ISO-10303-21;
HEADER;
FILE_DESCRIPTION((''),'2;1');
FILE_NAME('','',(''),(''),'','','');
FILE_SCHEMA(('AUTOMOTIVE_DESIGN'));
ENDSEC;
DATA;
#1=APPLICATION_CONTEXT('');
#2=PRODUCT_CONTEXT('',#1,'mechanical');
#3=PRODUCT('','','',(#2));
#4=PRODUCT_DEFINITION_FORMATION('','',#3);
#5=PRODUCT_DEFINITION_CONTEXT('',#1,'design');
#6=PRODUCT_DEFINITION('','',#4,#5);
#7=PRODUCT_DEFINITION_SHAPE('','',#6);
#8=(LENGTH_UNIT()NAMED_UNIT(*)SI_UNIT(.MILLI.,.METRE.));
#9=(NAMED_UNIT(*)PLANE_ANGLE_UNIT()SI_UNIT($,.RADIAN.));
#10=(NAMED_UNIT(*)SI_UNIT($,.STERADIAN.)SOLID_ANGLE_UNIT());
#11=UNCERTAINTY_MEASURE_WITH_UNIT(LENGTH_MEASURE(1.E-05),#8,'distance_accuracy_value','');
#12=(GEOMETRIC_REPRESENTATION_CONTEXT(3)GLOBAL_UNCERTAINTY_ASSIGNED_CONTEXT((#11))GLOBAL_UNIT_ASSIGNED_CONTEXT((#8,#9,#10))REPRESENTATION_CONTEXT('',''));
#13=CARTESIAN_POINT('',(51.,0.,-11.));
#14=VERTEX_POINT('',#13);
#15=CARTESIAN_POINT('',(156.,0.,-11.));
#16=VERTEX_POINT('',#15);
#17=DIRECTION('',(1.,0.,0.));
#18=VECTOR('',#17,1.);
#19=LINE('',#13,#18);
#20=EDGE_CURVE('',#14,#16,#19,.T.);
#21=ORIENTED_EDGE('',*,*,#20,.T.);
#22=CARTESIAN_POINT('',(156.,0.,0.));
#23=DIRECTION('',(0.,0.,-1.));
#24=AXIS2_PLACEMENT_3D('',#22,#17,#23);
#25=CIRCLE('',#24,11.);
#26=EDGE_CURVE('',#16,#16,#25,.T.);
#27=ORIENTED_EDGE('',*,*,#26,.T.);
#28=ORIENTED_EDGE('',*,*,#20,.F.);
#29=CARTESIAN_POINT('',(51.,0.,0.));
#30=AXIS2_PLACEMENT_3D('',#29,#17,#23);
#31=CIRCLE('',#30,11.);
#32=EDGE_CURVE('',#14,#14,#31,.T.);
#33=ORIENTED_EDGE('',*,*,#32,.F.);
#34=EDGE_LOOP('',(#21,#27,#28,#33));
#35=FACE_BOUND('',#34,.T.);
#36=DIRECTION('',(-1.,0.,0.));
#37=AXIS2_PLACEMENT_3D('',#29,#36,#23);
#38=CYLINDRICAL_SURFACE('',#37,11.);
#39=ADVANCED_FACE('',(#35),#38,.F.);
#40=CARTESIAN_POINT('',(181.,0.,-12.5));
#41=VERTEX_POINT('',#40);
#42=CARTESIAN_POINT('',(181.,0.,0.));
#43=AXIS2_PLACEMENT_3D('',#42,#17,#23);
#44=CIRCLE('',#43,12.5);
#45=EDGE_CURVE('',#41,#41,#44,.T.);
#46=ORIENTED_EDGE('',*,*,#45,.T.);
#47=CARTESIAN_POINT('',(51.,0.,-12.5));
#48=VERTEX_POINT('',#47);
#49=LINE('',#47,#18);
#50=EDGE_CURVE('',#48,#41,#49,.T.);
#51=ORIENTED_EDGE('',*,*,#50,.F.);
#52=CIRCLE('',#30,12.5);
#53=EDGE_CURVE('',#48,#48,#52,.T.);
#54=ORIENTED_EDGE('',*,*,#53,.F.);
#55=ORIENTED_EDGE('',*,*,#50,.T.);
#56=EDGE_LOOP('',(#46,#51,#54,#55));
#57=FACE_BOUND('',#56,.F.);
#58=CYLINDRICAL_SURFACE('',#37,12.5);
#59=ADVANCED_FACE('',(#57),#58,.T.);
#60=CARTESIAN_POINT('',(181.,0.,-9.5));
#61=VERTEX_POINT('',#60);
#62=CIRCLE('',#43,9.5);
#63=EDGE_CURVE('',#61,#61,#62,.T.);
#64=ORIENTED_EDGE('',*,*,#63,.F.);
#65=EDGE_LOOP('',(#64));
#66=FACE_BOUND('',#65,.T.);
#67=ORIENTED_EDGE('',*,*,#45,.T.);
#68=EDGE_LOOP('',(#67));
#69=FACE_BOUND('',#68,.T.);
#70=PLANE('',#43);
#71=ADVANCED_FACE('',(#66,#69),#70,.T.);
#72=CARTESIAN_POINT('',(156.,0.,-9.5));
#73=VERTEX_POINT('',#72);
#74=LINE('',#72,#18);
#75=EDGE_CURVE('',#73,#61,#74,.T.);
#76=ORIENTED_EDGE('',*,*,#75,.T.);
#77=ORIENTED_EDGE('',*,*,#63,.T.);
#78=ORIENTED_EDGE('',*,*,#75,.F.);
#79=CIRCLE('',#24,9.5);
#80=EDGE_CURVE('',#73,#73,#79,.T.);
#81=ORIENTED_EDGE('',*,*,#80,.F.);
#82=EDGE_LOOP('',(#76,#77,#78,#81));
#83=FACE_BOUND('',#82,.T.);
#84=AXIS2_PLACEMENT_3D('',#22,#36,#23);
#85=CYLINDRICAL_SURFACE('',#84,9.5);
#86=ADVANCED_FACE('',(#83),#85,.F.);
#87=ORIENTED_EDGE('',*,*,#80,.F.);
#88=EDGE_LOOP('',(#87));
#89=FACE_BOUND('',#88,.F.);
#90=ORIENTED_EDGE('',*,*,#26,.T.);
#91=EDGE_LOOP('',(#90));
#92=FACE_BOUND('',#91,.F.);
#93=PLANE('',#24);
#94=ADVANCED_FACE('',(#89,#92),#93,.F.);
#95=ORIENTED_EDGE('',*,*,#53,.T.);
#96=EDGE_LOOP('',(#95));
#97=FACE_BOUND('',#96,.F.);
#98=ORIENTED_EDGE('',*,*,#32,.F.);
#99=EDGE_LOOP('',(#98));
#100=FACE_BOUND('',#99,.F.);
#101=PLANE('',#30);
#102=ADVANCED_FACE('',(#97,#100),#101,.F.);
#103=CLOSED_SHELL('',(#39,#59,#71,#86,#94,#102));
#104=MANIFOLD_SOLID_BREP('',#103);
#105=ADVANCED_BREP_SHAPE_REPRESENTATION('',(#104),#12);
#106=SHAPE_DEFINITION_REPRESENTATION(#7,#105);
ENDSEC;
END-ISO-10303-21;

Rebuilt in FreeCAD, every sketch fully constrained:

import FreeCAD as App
import Part
import Sketcher

V = App.Vector
Q = App.Units.Quantity

doc = App.newDocument("Part")
body = doc.addObject("PartDesign::Body", "Body")

# Sketch on XY plane
sketch1 = doc.addObject("Sketcher::SketchObject", "Sketch")
body.addObject(sketch1)
sketch1.AttachmentSupport = (doc.XY_Plane, [""])
sketch1.MapMode = "FlatFace"
sketch1.addGeometry(Part.Circle(V(0, 0, 0), V(0, 0, 1), 9.5), False)
sketch1.addConstraint([
    Sketcher.Constraint("Coincident", 0, 3, -1, 1),
    Sketcher.Constraint("Diameter", 0, Q("19 mm")),
])
pad1 = doc.addObject("PartDesign::Pad", "Pad")
body.addObject(pad1)
pad1.Profile = sketch1
pad1.Length = 25
body2 = doc.addObject("PartDesign::Body", "Body001")
doc.recompute()

body.Placement = App.Placement(V(0, 0, 0), App.Rotation(V(0, 1, 0), 90))
boolean = doc.addObject("PartDesign::Boolean", "Boolean")
body2.addObject(boolean)
boolean.Type = "Fuse"
boolean.addObjects([body])
body3 = doc.addObject("PartDesign::Body", "Body002")
doc.recompute()

body2.Placement = App.Placement(V(156, 0, 0), App.Rotation(V(0, 0, 1), 0))
boolean2 = doc.addObject("PartDesign::Boolean", "Boolean001")
body3.addObject(boolean2)
boolean2.Type = "Fuse"
boolean2.addObjects([body2])
body4 = doc.addObject("PartDesign::Body", "Body003")

# Sketch on XY plane
sketch2 = doc.addObject("Sketcher::SketchObject", "Sketch001")
body4.addObject(sketch2)
sketch2.AttachmentSupport = (doc.getObject("XY_Plane003"), [""])
sketch2.MapMode = "FlatFace"
sketch2.addGeometry(Part.Circle(V(0, 0, 0), V(0, 0, 1), 11), False)
sketch2.addConstraint([
    Sketcher.Constraint("Coincident", 0, 3, -1, 1),
    Sketcher.Constraint("Diameter", 0, Q("22 mm")),
])
pad2 = doc.addObject("PartDesign::Pad", "Pad001")
body4.addObject(pad2)
pad2.Profile = sketch2
pad2.Length = 105
body5 = doc.addObject("PartDesign::Body", "Body004")
doc.recompute()

body4.Placement = App.Placement(V(0, 0, 0), App.Rotation(V(0, 1, 0), 90))
boolean3 = doc.addObject("PartDesign::Boolean", "Boolean002")
body5.addObject(boolean3)
boolean3.Type = "Fuse"
boolean3.addObjects([body4])
body6 = doc.addObject("PartDesign::Body", "Body005")
doc.recompute()

body5.Placement = App.Placement(V(51, 0, 0), App.Rotation(V(0, 0, 1), 0))
boolean4 = doc.addObject("PartDesign::Boolean", "Boolean003")
body6.addObject(boolean4)
boolean4.Type = "Fuse"
boolean4.addObjects([body5])
body7 = doc.addObject("PartDesign::Body", "Body006")

# Sketch on XY plane
sketch3 = doc.addObject("Sketcher::SketchObject", "Sketch002")
body7.addObject(sketch3)
sketch3.AttachmentSupport = (doc.getObject("XY_Plane006"), [""])
sketch3.MapMode = "FlatFace"
sketch3.addGeometry(Part.Circle(V(0, 0, 0), V(0, 0, 1), 12.5), False)
sketch3.addConstraint([
    Sketcher.Constraint("Coincident", 0, 3, -1, 1),
    Sketcher.Constraint("Diameter", 0, Q("25 mm")),
])
pad3 = doc.addObject("PartDesign::Pad", "Pad002")
body7.addObject(pad3)
pad3.Profile = sketch3
pad3.Length = 130
body8 = doc.addObject("PartDesign::Body", "Body007")
doc.recompute()

body7.Placement = App.Placement(V(0, 0, 0), App.Rotation(V(0, 1, 0), 90))
boolean5 = doc.addObject("PartDesign::Boolean", "Boolean004")
body8.addObject(boolean5)
boolean5.Type = "Fuse"
boolean5.addObjects([body7])
body9 = doc.addObject("PartDesign::Body", "Body008")
doc.recompute()

body8.Placement = App.Placement(V(51, 0, 0), App.Rotation(V(0, 0, 1), 0))
boolean6 = doc.addObject("PartDesign::Boolean", "Boolean005")
body9.addObject(boolean6)
boolean6.Type = "Fuse"
boolean6.addObjects([body8])
doc.recompute()

boolean7 = doc.addObject("PartDesign::Boolean", "Boolean006")
body9.addObject(boolean7)
boolean7.Type = "Cut"
boolean7.addObjects([body6])
doc.recompute()

boolean8 = doc.addObject("PartDesign::Boolean", "Boolean007")
body9.addObject(boolean8)
boolean8.Type = "Cut"
boolean8.addObjects([body3])

doc.recompute()
